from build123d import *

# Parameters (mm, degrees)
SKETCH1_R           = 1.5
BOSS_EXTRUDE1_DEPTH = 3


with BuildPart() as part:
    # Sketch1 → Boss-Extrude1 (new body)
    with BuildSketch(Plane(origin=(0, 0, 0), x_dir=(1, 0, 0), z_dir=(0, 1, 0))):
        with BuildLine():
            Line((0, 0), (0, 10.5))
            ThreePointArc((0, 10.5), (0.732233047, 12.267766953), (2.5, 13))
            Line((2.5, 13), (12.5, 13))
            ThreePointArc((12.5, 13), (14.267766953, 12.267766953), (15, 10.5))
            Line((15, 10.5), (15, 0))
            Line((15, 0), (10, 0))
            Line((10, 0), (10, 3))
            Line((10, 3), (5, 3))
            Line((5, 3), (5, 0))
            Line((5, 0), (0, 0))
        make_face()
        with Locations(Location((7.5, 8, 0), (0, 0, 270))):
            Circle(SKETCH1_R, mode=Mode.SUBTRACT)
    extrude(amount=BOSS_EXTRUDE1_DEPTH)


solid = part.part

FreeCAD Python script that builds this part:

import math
import FreeCAD as App
import Part
import Sketcher
Q = App.Units.Quantity

doc = App.newDocument("Part")
body = doc.addObject("PartDesign::Body", "Body")

# Sketch on XZ plane
sketch1 = body.newObject("Sketcher::SketchObject", "Sketch")
sketch1.AttachmentSupport = (doc.getObject("XZ_Plane"), [""])
sketch1.MapMode = "FlatFace"
sketch1.addGeometry(Part.LineSegment(App.Vector(0, -10.5, 0), App.Vector(0, 0, 0)), False)
sketch1.addGeometry(Part.LineSegment(App.Vector(0, 0, 0), App.Vector(5, 0, 0)), False)
sketch1.addGeometry(Part.LineSegment(App.Vector(5, 0, 0), App.Vector(5, -3, 0)), False)
sketch1.addGeometry(Part.LineSegment(App.Vector(5, -3, 0), App.Vector(10, -3, 0)), False)
sketch1.addGeometry(Part.LineSegment(App.Vector(10, -3, 0), App.Vector(10, 0, 0)), False)
sketch1.addGeometry(Part.LineSegment(App.Vector(10, 0, 0), App.Vector(15, 0, 0)), False)
sketch1.addGeometry(Part.LineSegment(App.Vector(15, 0, 0), App.Vector(15, -10.5, 0)), False)
sketch1.addGeometry(Part.ArcOfCircle(Part.Circle(App.Vector(12.5, -10.5, 0), App.Vector(0, 0, 1), 2.5), math.radians(-90), math.radians(0)), False)
sketch1.addGeometry(Part.LineSegment(App.Vector(12.5, -13, 0), App.Vector(2.5, -13, 0)), False)
sketch1.addGeometry(Part.ArcOfCircle(Part.Circle(App.Vector(2.5, -10.5, 0), App.Vector(0, 0, 1), 2.5), math.radians(180), math.radians(270)), False)
sketch1.addGeometry(Part.Circle(App.Vector(7.5, -8, 0), App.Vector(0, 0, 1), 1.5), False)
sketch1.addConstraint(Sketcher.Constraint("Coincident", 0, 2, 1, 1))
sketch1.addConstraint(Sketcher.Constraint("Coincident", 1, 2, 2, 1))
sketch1.addConstraint(Sketcher.Constraint("Coincident", 2, 2, 3, 1))
sketch1.addConstraint(Sketcher.Constraint("Coincident", 3, 2, 4, 1))
sketch1.addConstraint(Sketcher.Constraint("Coincident", 4, 2, 5, 1))
sketch1.addConstraint(Sketcher.Constraint("Coincident", 5, 2, 6, 1))
sketch1.addConstraint(Sketcher.Constraint("Tangent", 6, 2, 7, 2))
sketch1.addConstraint(Sketcher.Constraint("Tangent", 7, 1, 8, 1))
sketch1.addConstraint(Sketcher.Constraint("Tangent", 8, 2, 9, 2))
sketch1.addConstraint(Sketcher.Constraint("Tangent", 9, 1, 0, 1))
sketch1.addConstraint(Sketcher.Constraint("Vertical", 0))
sketch1.addConstraint(Sketcher.Constraint("Horizontal", 1))
sketch1.addConstraint(Sketcher.Constraint("Vertical", 2))
sketch1.addConstraint(Sketcher.Constraint("Horizontal", 3))
sketch1.addConstraint(Sketcher.Constraint("Vertical", 4))
sketch1.addConstraint(Sketcher.Constraint("Horizontal", 5))
sketch1.addConstraint(Sketcher.Constraint("Vertical", 6))
sketch1.addConstraint(Sketcher.Constraint("Horizontal", 8))
sketch1.addConstraint(Sketcher.Constraint("Coincident", 0, 2, -1, 1))
sketch1.addConstraint(Sketcher.Constraint("Equal", 7, 9))
sketch1.addConstraint(Sketcher.Constraint("PointOnObject", 4, 2, -1))
sketch1.addConstraint(Sketcher.Constraint("Equal", 1, 3))
sketch1.addConstraint(Sketcher.Constraint("Equal", 3, 5))
sketch1.addConstraint(Sketcher.Constraint("Diameter", 10, Q("3 mm")))
sketch1.addConstraint(Sketcher.Constraint("Radius", 7, Q("2.5 mm")))
sketch1.addConstraint(Sketcher.Constraint("DistanceX", 1, 1, 1, 2, Q("5 mm")))
sketch1.addConstraint(Sketcher.Constraint("DistanceY", 2, 2, 2, 1, Q("3 mm")))
sketch1.addConstraint(Sketcher.Constraint("DistanceY", 0, 1, 0, 2, Q("10.5 mm")))
sketch1.addConstraint(Sketcher.Constraint("DistanceY", 10, 3, -1, 1, Q("8 mm")))
sketch1.addConstraint(Sketcher.Constraint("DistanceX", 10, 3, 7, 3, Q("5 mm")))
pad1 = body.newObject("PartDesign::Pad", "Pad")
pad1.Profile = sketch1
pad1.Length = 3
pad1.Reversed = True

doc.recompute()
